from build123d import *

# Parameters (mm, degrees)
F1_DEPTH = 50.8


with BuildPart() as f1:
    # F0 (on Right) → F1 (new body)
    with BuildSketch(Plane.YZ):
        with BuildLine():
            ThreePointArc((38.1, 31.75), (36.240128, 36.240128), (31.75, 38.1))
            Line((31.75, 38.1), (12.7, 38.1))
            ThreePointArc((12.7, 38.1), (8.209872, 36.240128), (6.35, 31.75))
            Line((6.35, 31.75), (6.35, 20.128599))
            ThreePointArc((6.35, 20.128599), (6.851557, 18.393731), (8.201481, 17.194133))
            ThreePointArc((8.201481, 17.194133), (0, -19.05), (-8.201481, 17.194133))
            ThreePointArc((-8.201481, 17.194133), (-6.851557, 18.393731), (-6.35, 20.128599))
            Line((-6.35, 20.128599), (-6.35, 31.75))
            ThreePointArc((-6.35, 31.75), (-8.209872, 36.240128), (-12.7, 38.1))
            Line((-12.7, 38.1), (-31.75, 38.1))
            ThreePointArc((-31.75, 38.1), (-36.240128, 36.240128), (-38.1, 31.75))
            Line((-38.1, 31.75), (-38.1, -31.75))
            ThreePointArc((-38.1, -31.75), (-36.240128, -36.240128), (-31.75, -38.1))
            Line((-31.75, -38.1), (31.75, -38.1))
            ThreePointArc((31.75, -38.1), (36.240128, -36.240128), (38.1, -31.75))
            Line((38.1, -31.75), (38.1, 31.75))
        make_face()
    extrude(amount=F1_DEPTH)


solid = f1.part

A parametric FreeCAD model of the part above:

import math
import FreeCAD as App
import Part
import Sketcher

V = App.Vector
Q = App.Units.Quantity

doc = App.newDocument("Part")
body = doc.addObject("PartDesign::Body", "Body")

sketch1 = body.newObject("Sketcher::SketchObject", "Sketch")
sketch1.AttachmentSupport = (doc.getObject("YZ_Plane"), [""])
sketch1.MapMode = "FlatFace"
sketch1.addGeometry([
    Part.ArcOfCircle(Part.Circle(V(31.7, 31.7, 0), V(0, 0, 1), 6.4), math.radians(0), math.radians(90)),
    Part.LineSegment(V(31.8, 38.1, 0), V(12.7, 38.1, 0)),
    Part.ArcOfCircle(Part.Circle(V(12.7, 31.7, 0), V(0, 0, 1), 6.4), math.radians(90), math.radians(180)),
    Part.LineSegment(V(6.3, 31.8, 0), V(6.3, 20.1, 0)),
    Part.ArcOfCircle(Part.Circle(V(9.6, 20.1, 0), V(0, 0, 1), 3.3), math.radians(180), math.radians(244)),
    Part.ArcOfCircle(Part.Circle(V(0, 0, 0), V(0, 0, 1), 19.1), math.radians(116), math.radians(424)),
    Part.ArcOfCircle(Part.Circle(V(-9.6, 20.1, 0), V(0, 0, 1), 3.3), math.radians(-64), math.radians(0)),
    Part.LineSegment(V(-6.3, 20.1, 0), V(-6.3, 31.8, 0)),
    Part.ArcOfCircle(Part.Circle(V(-12.7, 31.7, 0), V(0, 0, 1), 6.4), math.radians(0), math.radians(90)),
    Part.LineSegment(V(-12.7, 38.1, 0), V(-31.8, 38.1, 0)),
    Part.ArcOfCircle(Part.Circle(V(-31.7, 31.7, 0), V(0, 0, 1), 6.4), math.radians(90), math.radians(180)),
    Part.LineSegment(V(-38.1, 31.8, 0), V(-38.1, -31.8, 0)),
    Part.ArcOfCircle(Part.Circle(V(-31.7, -31.7, 0), V(0, 0, 1), 6.4), math.radians(-180), math.radians(-90)),
    Part.LineSegment(V(-31.8, -38.1, 0), V(31.8, -38.1, 0)),
    Part.ArcOfCircle(Part.Circle(V(31.7, -31.7, 0), V(0, 0, 1), 6.4), math.radians(-90), math.radians(0)),
    Part.LineSegment(V(38.1, -31.8, 0), V(38.1, 31.8, 0)),
], False)
sketch1.addConstraint([
    Sketcher.Constraint("Tangent", 0, 2, 1, 1),
    Sketcher.Constraint("Tangent", 1, 2, 2, 1),
    Sketcher.Constraint("Tangent", 2, 2, 3, 1),
    Sketcher.Constraint("Tangent", 3, 2, 4, 1),
    Sketcher.Constraint("Tangent", 4, 2, 5, 2),
    Sketcher.Constraint("Tangent", 5, 1, 6, 1),
    Sketcher.Constraint("Tangent", 6, 2, 7, 1),
    Sketcher.Constraint("Tangent", 7, 2, 8, 1),
    Sketcher.Constraint("Tangent", 8, 2, 9, 1),
    Sketcher.Constraint("Tangent", 9, 2, 10, 1),
    Sketcher.Constraint("Tangent", 10, 2, 11, 1),
    Sketcher.Constraint("Tangent", 11, 2, 12, 1),
    Sketcher.Constraint("Tangent", 12, 2, 13, 1),
    Sketcher.Constraint("Tangent", 13, 2, 14, 1),
    Sketcher.Constraint("Tangent", 14, 2, 15, 1),
    Sketcher.Constraint("Tangent", 15, 2, 0, 1),
    Sketcher.Constraint("Horizontal", 1),
    Sketcher.Constraint("Vertical", 3),
    Sketcher.Constraint("Vertical", 7),
    Sketcher.Constraint("Horizontal", 9),
    Sketcher.Constraint("Vertical", 11),
    Sketcher.Constraint("Horizontal", 13),
    Sketcher.Constraint("Vertical", 15),
    Sketcher.Constraint("Coincident", 5, 3, -1, 1),
    Sketcher.Constraint("Equal", 0, 2),
    Sketcher.Constraint("Equal", 4, 6),
    Sketcher.Constraint("Equal", 2, 8),
    Sketcher.Constraint("Equal", 8, 10),
    Sketcher.Constraint("Equal", 10, 12),
    Sketcher.Constraint("Equal", 12, 14),
    Sketcher.Constraint("Symmetric", 0, 3, 12, 3, -1, 1),
    Sketcher.Constraint("Symmetric", 2, 3, 8, 3, -2),
    Sketcher.Constraint("Equal", 13, 11),
    Sketcher.Constraint("Radius", 0, Q("0.25 in")),
    Sketcher.Constraint("Radius", 5, Q("0.75 in")),
    Sketcher.Constraint("DistanceX", 13, 1, 13, 2, Q("2.5 in")),
    Sketcher.Constraint("Radius", 4, Q("0.128 in")),
    Sketcher.Constraint("DistanceX", 8, 3, 2, 3, Q("1 in")),
])
pad1 = body.newObject("PartDesign::Pad", "Pad")
pad1.Profile = sketch1
pad1.Length = Q("2 in")

doc.recompute()
